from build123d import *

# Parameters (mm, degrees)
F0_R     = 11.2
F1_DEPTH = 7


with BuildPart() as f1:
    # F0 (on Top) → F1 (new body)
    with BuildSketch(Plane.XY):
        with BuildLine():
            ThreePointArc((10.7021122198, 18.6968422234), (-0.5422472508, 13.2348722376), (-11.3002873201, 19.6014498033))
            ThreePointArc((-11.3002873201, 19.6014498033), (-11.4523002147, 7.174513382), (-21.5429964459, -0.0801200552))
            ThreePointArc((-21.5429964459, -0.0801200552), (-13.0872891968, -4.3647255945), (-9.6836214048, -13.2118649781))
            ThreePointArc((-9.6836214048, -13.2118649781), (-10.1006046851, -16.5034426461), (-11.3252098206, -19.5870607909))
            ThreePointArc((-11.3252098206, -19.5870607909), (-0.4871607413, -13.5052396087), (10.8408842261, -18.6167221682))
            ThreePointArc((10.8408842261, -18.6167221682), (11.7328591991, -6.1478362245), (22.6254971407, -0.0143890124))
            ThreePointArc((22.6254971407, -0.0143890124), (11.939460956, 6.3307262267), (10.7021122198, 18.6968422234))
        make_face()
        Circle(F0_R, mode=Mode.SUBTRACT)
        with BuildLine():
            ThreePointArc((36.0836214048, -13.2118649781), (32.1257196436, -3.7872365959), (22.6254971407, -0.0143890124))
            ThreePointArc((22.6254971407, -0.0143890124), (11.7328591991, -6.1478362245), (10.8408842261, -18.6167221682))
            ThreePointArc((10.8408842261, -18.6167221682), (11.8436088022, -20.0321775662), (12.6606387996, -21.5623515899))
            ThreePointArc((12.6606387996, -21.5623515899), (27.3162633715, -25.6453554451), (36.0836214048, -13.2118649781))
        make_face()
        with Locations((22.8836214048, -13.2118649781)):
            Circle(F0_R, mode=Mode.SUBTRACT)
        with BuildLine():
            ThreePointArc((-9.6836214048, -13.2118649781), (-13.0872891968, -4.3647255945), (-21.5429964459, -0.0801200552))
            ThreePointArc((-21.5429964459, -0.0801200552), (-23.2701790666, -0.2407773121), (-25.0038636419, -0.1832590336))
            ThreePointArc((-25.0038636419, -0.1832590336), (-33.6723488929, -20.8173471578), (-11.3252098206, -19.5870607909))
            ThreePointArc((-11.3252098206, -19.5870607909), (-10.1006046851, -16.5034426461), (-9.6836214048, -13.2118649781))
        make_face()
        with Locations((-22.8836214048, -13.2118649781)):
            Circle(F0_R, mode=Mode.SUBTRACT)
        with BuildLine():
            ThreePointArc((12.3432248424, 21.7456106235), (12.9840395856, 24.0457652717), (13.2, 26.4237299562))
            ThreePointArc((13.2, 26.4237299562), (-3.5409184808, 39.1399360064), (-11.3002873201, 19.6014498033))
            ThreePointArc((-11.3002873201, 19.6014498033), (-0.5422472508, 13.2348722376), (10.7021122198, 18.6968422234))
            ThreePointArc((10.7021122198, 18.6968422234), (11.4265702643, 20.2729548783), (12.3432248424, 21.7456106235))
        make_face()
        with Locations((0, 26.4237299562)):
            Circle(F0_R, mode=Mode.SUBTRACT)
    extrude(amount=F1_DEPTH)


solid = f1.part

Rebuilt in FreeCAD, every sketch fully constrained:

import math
import FreeCAD as App
import Part
import Sketcher
from FreeCAD import Vector

doc = App.newDocument("Part")
body = doc.addObject("PartDesign::Body", "Body")

sketch1 = body.newObject("Sketcher::SketchObject", "Sketch")
sketch1.AttachmentSupport = (doc.getObject("XY_Plane"), [""])
sketch1.MapMode = "FlatFace"
sketch1.addGeometry([
    Part.ArcOfCircle(Part.Circle(Vector(23.6, 13.7, 0), Vector(0, 0, 1), 13.8), math.radians(159), math.radians(266)),
    Part.ArcOfCircle(Part.Circle(Vector(23.6, 13.7, 0), Vector(0, 0, 1), 13.8), math.radians(144.49), math.radians(158.92)),
    Part.ArcOfCircle(Part.Circle(Vector(0, 26.4, 0), Vector(0, 0, 1), 13.2), math.radians(-21), math.radians(0)),
    Part.ArcOfCircle(Part.Circle(Vector(0, 26.4, 0), Vector(0, 0, 1), 13.2), math.radians(0), math.radians(211)),
    Part.ArcOfCircle(Part.Circle(Vector(-23.7, 13.5, 0), Vector(0, 0, 1), 13.8), math.radians(-81), math.radians(26)),
    Part.ArcOfCircle(Part.Circle(Vector(-23.7, 13.5, 0), Vector(0, 0, 1), 13.8), math.radians(-95.51), math.radians(-81.08)),
    Part.ArcOfCircle(Part.Circle(Vector(-22.9, -13.2, 0), Vector(0, 0, 1), 13.2), math.radians(99), math.radians(331)),
    Part.ArcOfCircle(Part.Circle(Vector(0.1, -27.3, 0), Vector(0, 0, 1), 13.8), math.radians(39), math.radians(146)),
    Part.ArcOfCircle(Part.Circle(Vector(0.1, -27.3, 0), Vector(0, 0, 1), 13.8), math.radians(24.49), math.radians(38.92)),
    Part.ArcOfCircle(Part.Circle(Vector(22.9, -13.2, 0), Vector(0, 0, 1), 13.2), math.radians(-141), math.radians(0)),
    Part.ArcOfCircle(Part.Circle(Vector(22.9, -13.2, 0), Vector(0, 0, 1), 13.2), math.radians(0), math.radians(91)),
    Part.Circle(Vector(-22.9, -13.2, 0), Vector(0, 0, 1), 11.2),
    Part.Circle(Vector(22.9, -13.2, 0), Vector(0, 0, 1), 11.2),
    Part.Circle(Vector(0, 0, 0), Vector(0, 0, 1), 11.2),
    Part.Circle(Vector(0, 26.4, 0), Vector(0, 0, 1), 11.2),
], False)
sketch1.addConstraint([
    Sketcher.Constraint("Tangent", 0, 1, 1, 2),
    Sketcher.Constraint("Coincident", 1, 1, 2, 1),
    Sketcher.Constraint("Tangent", 2, 2, 3, 1),
    Sketcher.Constraint("Coincident", 3, 2, 4, 2),
    Sketcher.Constraint("Tangent", 4, 1, 5, 2),
    Sketcher.Constraint("Coincident", 5, 1, 6, 1),
    Sketcher.Constraint("Coincident", 6, 2, 7, 2),
    Sketcher.Constraint("Tangent", 7, 1, 8, 2),
    Sketcher.Constraint("Coincident", 8, 1, 9, 1),
    Sketcher.Constraint("Tangent", 9, 2, 10, 1),
    Sketcher.Constraint("Coincident", 10, 2, 0, 2),
    Sketcher.Constraint("Coincident", 13, 3, -1, 1),
    Sketcher.Constraint("Coincident", 11, 3, 6, 3),
    Sketcher.Constraint("Coincident", 12, 3, 9, 3),
    Sketcher.Constraint("Coincident", 14, 3, 2, 3),
    Sketcher.Constraint("Equal", 0, 1),
    Sketcher.Constraint("Equal", 2, 3),
    Sketcher.Constraint("Equal", 1, 4),
    Sketcher.Constraint("Equal", 4, 5),
    Sketcher.Constraint("Equal", 3, 6),
    Sketcher.Constraint("Equal", 5, 7),
    Sketcher.Constraint("Equal", 7, 8),
    Sketcher.Constraint("Equal", 6, 9),
    Sketcher.Constraint("Equal", 9, 10),
    Sketcher.Constraint("Equal", 11, 12),
    Sketcher.Constraint("Equal", 12, 13),
    Sketcher.Constraint("Equal", 13, 14),
    Sketcher.Constraint("Symmetric", 6, 3, 9, 3, -2),
    Sketcher.Constraint("PointOnObject", 2, 3, -2),
    Sketcher.Constraint("Horizontal", 14, 3, 2, 2),
    Sketcher.Constraint("Horizontal", 12, 3, 9, 2),
    Sketcher.Constraint("Diameter", 11, 22.4),
    Sketcher.Constraint("Radius", 2, 13.2),
    Sketcher.Constraint("Radius", 0, 13.785392),
    Sketcher.Constraint("DistanceX", 4, 3, 6, 3, 0.7972),
    Sketcher.Constraint("DistanceY", -1, 1, 2, 3, 26.42373),
    Sketcher.Constraint("DistanceX", 4, 3, -1, 1, 23.680822),
    Sketcher.Constraint("DistanceX", -1, 1, 7, 3, 0.115729),
    Sketcher.Constraint("DistanceY", 7, 3, -1, 1, 27.277442),
    Sketcher.Constraint("DistanceY", -1, 1, 1, 1, 21.745611),
    Sketcher.Constraint("DistanceY", -1, 1, 3, 2, 19.60145),
    Sketcher.Constraint("DistanceY", 4, 1, -1, 1, 0.08012),
    Sketcher.Constraint("DistanceY", 5, 1, -1, 1, 0.183259),
    Sketcher.Constraint("DistanceY", 10, 2, -1, 1, 0.014389),
    Sketcher.Constraint("DistanceX", 0, 1, 1, 3, 12.862981),
    Sketcher.Constraint("DistanceY", 7, 3, 7, 1, 8.66072),
])
pad1 = body.newObject("PartDesign::Pad", "Pad")
pad1.Profile = sketch1
pad1.Length = 7

doc.recompute()
